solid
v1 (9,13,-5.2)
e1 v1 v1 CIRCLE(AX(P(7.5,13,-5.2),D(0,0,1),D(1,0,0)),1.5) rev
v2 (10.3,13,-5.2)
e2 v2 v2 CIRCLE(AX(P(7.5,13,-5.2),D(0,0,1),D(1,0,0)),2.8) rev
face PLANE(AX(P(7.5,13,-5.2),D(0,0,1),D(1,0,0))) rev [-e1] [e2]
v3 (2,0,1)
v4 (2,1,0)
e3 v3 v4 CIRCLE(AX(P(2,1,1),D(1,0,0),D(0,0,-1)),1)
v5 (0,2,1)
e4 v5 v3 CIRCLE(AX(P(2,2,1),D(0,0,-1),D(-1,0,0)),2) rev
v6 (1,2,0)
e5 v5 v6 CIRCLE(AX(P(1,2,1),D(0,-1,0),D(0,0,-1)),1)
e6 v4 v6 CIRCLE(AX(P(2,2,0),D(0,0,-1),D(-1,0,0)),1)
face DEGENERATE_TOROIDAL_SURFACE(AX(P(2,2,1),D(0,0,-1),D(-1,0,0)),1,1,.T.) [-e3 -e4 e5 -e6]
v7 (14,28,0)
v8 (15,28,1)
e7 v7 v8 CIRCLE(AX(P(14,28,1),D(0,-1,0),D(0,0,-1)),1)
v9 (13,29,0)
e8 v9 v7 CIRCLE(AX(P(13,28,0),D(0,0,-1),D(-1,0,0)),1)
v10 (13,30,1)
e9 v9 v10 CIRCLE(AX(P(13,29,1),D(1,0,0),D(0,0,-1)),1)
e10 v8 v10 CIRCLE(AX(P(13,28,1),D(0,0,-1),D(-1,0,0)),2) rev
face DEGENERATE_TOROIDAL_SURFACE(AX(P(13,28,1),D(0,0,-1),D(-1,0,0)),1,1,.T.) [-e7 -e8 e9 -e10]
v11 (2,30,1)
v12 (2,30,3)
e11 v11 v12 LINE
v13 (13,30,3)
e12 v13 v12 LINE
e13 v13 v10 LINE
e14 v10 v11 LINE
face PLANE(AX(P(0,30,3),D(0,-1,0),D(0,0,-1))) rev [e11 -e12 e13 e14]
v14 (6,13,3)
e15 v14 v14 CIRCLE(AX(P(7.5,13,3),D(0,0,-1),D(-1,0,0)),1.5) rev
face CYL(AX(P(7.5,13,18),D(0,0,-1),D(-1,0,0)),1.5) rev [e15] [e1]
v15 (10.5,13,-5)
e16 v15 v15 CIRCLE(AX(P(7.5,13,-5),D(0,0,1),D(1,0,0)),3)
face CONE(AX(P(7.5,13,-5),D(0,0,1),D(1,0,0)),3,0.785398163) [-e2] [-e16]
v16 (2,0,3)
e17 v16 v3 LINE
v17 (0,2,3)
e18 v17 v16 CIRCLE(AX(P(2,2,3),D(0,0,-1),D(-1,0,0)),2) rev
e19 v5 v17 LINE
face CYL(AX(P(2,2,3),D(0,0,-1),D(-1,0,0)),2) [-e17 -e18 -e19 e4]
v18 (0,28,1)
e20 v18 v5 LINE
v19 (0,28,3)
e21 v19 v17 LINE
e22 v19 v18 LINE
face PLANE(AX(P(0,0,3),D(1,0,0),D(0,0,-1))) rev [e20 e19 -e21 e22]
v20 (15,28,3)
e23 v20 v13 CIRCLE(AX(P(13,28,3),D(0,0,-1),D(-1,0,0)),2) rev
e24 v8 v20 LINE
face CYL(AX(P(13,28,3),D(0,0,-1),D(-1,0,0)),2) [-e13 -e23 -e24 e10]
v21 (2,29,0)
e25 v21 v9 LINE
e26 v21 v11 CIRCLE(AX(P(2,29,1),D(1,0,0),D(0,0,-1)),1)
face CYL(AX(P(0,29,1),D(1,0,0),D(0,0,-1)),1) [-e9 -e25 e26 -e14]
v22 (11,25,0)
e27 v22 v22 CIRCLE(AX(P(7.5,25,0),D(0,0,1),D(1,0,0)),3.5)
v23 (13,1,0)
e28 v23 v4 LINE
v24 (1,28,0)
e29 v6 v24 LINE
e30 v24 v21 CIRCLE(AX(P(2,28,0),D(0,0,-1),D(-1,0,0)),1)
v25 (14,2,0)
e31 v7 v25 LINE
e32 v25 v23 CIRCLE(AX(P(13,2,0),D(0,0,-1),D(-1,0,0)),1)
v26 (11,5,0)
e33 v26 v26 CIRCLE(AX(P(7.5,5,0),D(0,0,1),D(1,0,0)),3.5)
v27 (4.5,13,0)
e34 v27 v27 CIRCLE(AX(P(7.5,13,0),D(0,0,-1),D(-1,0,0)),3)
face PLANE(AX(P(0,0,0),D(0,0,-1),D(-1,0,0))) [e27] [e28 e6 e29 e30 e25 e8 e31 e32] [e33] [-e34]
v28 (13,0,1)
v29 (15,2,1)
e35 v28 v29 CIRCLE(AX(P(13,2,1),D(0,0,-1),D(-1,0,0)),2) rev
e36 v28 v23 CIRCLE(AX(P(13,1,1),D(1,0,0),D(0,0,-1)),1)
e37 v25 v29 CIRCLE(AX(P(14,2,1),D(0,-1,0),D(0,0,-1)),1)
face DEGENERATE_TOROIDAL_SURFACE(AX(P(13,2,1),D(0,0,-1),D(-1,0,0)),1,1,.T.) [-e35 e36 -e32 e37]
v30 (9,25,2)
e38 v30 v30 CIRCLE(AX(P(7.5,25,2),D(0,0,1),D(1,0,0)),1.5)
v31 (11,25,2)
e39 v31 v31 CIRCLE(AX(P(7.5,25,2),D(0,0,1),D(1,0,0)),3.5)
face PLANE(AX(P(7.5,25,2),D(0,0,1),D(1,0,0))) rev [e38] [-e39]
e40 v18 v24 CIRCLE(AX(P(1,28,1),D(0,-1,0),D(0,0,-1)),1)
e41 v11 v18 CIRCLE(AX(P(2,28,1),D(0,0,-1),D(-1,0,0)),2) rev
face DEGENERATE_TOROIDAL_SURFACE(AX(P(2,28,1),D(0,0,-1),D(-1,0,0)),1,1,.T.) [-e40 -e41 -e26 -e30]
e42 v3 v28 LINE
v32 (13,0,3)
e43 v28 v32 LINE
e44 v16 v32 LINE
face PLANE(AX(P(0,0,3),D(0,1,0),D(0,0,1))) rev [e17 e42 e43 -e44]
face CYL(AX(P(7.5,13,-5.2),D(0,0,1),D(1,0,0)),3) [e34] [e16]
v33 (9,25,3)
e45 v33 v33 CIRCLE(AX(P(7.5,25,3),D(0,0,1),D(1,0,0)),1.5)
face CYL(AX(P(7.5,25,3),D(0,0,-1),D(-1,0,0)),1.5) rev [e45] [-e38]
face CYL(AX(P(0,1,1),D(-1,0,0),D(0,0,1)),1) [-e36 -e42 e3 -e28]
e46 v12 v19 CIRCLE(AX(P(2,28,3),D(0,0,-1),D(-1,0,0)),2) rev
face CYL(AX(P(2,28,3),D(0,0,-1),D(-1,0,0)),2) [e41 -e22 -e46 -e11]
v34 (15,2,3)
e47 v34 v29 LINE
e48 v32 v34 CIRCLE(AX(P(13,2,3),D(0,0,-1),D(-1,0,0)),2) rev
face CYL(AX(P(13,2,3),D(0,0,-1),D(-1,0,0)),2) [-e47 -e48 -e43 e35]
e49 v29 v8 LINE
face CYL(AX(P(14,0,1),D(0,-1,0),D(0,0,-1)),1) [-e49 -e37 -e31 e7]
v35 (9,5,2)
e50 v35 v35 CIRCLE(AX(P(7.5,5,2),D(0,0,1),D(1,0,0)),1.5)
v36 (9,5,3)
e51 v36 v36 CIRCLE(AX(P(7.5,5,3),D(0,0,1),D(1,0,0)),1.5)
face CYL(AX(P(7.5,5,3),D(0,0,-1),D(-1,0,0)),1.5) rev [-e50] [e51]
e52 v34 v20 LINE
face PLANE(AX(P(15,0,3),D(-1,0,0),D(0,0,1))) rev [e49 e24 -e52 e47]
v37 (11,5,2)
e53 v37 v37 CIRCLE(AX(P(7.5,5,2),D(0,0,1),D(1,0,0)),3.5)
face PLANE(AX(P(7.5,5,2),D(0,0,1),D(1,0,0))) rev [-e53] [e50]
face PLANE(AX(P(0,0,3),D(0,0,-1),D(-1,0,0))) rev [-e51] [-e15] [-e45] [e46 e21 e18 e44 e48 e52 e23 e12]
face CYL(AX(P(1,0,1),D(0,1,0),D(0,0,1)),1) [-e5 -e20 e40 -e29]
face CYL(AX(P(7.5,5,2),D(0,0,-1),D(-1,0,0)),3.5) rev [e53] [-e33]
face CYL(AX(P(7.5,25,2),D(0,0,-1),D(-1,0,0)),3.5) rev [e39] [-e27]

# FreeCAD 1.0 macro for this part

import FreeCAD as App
import Part
import Sketcher

V = App.Vector


def edges_at(feature, points):
    """Names of the edges that pass closest to the given points."""
    edges = feature.Shape.Edges
    near = lambda p: min(range(len(edges)), key=lambda i: edges[i].distToShape(Part.Vertex(*p))[0])
    return sorted({f"Edge{near(p) + 1}" for p in points})


def add_polygon(sketch, points):
    """Adds a closed chain of lines whose ends are joined by coincident constraints."""
    first, n = sketch.GeometryCount, len(points)
    for a, b in zip(points, points[1:] + points[:1]):
        sketch.addGeometry(Part.LineSegment(App.Vector(*a, 0), App.Vector(*b, 0)), False)
    for i in range(n):
        sketch.addConstraint(Sketcher.Constraint("Coincident", first + i, 2, first + (i + 1) % n, 1))

doc = App.newDocument("Part")
params = doc.addObject("Spreadsheet::Sheet", "Params")
for row, (alias, value) in enumerate([
    ("sketch1_width", "15 mm"),
    ("sketch1_height", "30 mm"),
    ("pad1_length", "3 mm"),
    ("sketch2_diameter", "3 mm"),
    ("pocket1_length", "3 mm"),
    ("sketch3_diameter", "7 mm"),
    ("pocket2_length", "2 mm"),
    ("sketch4_diameter", "6 mm"),
    ("pad2_length", "5.2 mm"),
    ("fillet_radius", "2 mm"),
    ("fillet2_radius", "1 mm"),
    ("sketch5_diameter", "3 mm"),
    ("chamfer_size", "0.2 mm"),
], start=1):
    params.set(f"A{row}", alias)
    params.set(f"B{row}", "=" + value)
    params.setAlias(f"B{row}", alias)

body = doc.addObject("PartDesign::Body", "Body")

# Sketch on XY plane
sketch1 = body.newObject("Sketcher::SketchObject", "Sketch")
sketch1.AttachmentSupport = (doc.getObject("XY_Plane"), [""])
sketch1.MapMode = "FlatFace"
add_polygon(sketch1, [(0, 30), (0, 0), (15, 0), (15, 30)])  # lines 0-3
sketch1.addConstraint(Sketcher.Constraint("Vertical", 0))
sketch1.addConstraint(Sketcher.Constraint("Horizontal", 1))
sketch1.addConstraint(Sketcher.Constraint("Vertical", 2))
sketch1.addConstraint(Sketcher.Constraint("Horizontal", 3))
sketch1.addConstraint(Sketcher.Constraint("Coincident", 0, 2, -1, 1))
sketch1.addConstraint(Sketcher.Constraint("DistanceX", 1, 1, 1, 2, 15.0))
sketch1.addConstraint(Sketcher.Constraint("DistanceY", 0, 2, 0, 1, 30.0))
sketch1.setExpression("Constraints[9]", "Params.sketch1_width")
sketch1.setExpression("Constraints[10]", "Params.sketch1_height")
pad1 = body.newObject("PartDesign::Pad", "Pad")
pad1.Profile = sketch1
pad1.setExpression("Length", "Params.pad1_length")

# Sketch on XY plane
sketch2 = body.newObject("Sketcher::SketchObject", "Sketch001")
sketch2.AttachmentSupport = (doc.getObject("XY_Plane"), [""])
sketch2.MapMode = "FlatFace"
sketch2.addGeometry(Part.Circle(V(7.5, 25, 0), V(0, 0, 1), 1.5), False)
sketch2.addGeometry(Part.Circle(V(7.5, 5, 0), V(0, 0, 1), 1.5), False)
sketch2.addConstraint(Sketcher.Constraint("Equal", 0, 1))
sketch2.addConstraint(Sketcher.Constraint("Vertical", 0, 3, 1, 3))
sketch2.addConstraint(Sketcher.Constraint("Diameter", 0, 3.0))
sketch2.addConstraint(Sketcher.Constraint("DistanceY", -1, 1, 0, 3, 25.0))
sketch2.addConstraint(Sketcher.Constraint("DistanceY", -1, 1, 1, 3, 5.0))
sketch2.addConstraint(Sketcher.Constraint("DistanceX", -1, 1, 0, 3, 7.5))
sketch2.setExpression("Constraints[2]", "Params.sketch2_diameter")
pocket1 = body.newObject("PartDesign::Pocket", "Pocket")
pocket1.Profile = sketch2
pocket1.setExpression("Length", "Params.pocket1_length")
pocket1.Reversed = True

# Sketch on XY plane
sketch3 = body.newObject("Sketcher::SketchObject", "Sketch002")
sketch3.AttachmentSupport = (doc.getObject("XY_Plane"), [""])
sketch3.MapMode = "FlatFace"
sketch3.addGeometry(Part.Circle(V(7.5, 25, 0), V(0, 0, 1), 3.5), False)
sketch3.addGeometry(Part.Circle(V(7.5, 5, 0), V(0, 0, 1), 3.5), False)
sketch3.addConstraint(Sketcher.Constraint("Equal", 0, 1))
sketch3.addConstraint(Sketcher.Constraint("Vertical", 0, 3, 1, 3))
sketch3.addConstraint(Sketcher.Constraint("Diameter", 0, 7.0))
sketch3.addConstraint(Sketcher.Constraint("DistanceY", -1, 1, 0, 3, 25.0))
sketch3.addConstraint(Sketcher.Constraint("DistanceY", -1, 1, 1, 3, 5.0))
sketch3.addConstraint(Sketcher.Constraint("DistanceX", -1, 1, 0, 3, 7.5))
sketch3.setExpression("Constraints[2]", "Params.sketch3_diameter")
pocket2 = body.newObject("PartDesign::Pocket", "Pocket001")
pocket2.Profile = sketch3
pocket2.setExpression("Length", "Params.pocket2_length")
pocket2.Reversed = True

# Sketch on XY plane
sketch4 = body.newObject("Sketcher::SketchObject", "Sketch003")
sketch4.AttachmentSupport = (doc.getObject("XY_Plane"), [""])
sketch4.MapMode = "FlatFace"
sketch4.addGeometry(Part.Circle(V(7.5, 13, 0), V(0, 0, 1), 3), False)
sketch4.addConstraint(Sketcher.Constraint("Diameter", 0, 6.0))
sketch4.addConstraint(Sketcher.Constraint("DistanceY", -1, 1, 0, 3, 13.0))
sketch4.addConstraint(Sketcher.Constraint("DistanceX", -1, 1, 0, 3, 7.5))
sketch4.setExpression("Constraints[0]", "Params.sketch4_diameter")
pad2 = body.newObject("PartDesign::Pad", "Pad001")
pad2.Profile = sketch4
pad2.setExpression("Length", "Params.pad2_length")
pad2.Reversed = True
doc.recompute()

fillet = body.newObject("PartDesign::Fillet", "Fillet")
fillet.Base = (pad2, edges_at(pad2, [
    (0, 30, 1.5),
    (15, 30, 1.5),
    (15, 0, 1.5),
    (0, 0, 1.5),
]))
fillet.setExpression("Radius", "Params.fillet_radius")
doc.recompute()

fillet2 = body.newObject("PartDesign::Fillet", "Fillet001")
fillet2.Base = (fillet, edges_at(fillet, [
    (7.5, 30, 0),
    (0, 15, 0),
    (15, 15, 0),
    (7.5, 0, 0),
    (0.586, 29.414, 0),
    (0.586, 0.586, 0),
    (14.414, 0.586, 0),
    (14.414, 29.414, 0),
]))
fillet2.setExpression("Radius", "Params.fillet2_radius")

# Sketch on XY plane
sketch5 = body.newObject("Sketcher::SketchObject", "Sketch004")
sketch5.AttachmentSupport = (doc.getObject("XY_Plane"), [""])
sketch5.MapMode = "FlatFace"
sketch5.addGeometry(Part.Circle(V(7.5, 13, 0), V(0, 0, 1), 1.5), False)
sketch5.addConstraint(Sketcher.Constraint("Diameter", 0, 3.0))
sketch5.addConstraint(Sketcher.Constraint("DistanceY", -1, 1, 0, 3, 13.0))
sketch5.addConstraint(Sketcher.Constraint("DistanceX", -1, 1, 0, 3, 7.5))
sketch5.setExpression("Constraints[0]", "Params.sketch5_diameter")
pocket3 = body.newObject("PartDesign::Pocket", "Pocket002")
pocket3.Profile = sketch5
pocket3.Type = "ThroughAll"
pocket3.Midplane = True
doc.recompute()

chamfer = body.newObject("PartDesign::Chamfer", "Chamfer")
chamfer.Base = (pocket3, edges_at(pocket3, [(4.5, 13, -5.2)]))
chamfer.setExpression("Size", "Params.chamfer_size")

doc.recompute()
